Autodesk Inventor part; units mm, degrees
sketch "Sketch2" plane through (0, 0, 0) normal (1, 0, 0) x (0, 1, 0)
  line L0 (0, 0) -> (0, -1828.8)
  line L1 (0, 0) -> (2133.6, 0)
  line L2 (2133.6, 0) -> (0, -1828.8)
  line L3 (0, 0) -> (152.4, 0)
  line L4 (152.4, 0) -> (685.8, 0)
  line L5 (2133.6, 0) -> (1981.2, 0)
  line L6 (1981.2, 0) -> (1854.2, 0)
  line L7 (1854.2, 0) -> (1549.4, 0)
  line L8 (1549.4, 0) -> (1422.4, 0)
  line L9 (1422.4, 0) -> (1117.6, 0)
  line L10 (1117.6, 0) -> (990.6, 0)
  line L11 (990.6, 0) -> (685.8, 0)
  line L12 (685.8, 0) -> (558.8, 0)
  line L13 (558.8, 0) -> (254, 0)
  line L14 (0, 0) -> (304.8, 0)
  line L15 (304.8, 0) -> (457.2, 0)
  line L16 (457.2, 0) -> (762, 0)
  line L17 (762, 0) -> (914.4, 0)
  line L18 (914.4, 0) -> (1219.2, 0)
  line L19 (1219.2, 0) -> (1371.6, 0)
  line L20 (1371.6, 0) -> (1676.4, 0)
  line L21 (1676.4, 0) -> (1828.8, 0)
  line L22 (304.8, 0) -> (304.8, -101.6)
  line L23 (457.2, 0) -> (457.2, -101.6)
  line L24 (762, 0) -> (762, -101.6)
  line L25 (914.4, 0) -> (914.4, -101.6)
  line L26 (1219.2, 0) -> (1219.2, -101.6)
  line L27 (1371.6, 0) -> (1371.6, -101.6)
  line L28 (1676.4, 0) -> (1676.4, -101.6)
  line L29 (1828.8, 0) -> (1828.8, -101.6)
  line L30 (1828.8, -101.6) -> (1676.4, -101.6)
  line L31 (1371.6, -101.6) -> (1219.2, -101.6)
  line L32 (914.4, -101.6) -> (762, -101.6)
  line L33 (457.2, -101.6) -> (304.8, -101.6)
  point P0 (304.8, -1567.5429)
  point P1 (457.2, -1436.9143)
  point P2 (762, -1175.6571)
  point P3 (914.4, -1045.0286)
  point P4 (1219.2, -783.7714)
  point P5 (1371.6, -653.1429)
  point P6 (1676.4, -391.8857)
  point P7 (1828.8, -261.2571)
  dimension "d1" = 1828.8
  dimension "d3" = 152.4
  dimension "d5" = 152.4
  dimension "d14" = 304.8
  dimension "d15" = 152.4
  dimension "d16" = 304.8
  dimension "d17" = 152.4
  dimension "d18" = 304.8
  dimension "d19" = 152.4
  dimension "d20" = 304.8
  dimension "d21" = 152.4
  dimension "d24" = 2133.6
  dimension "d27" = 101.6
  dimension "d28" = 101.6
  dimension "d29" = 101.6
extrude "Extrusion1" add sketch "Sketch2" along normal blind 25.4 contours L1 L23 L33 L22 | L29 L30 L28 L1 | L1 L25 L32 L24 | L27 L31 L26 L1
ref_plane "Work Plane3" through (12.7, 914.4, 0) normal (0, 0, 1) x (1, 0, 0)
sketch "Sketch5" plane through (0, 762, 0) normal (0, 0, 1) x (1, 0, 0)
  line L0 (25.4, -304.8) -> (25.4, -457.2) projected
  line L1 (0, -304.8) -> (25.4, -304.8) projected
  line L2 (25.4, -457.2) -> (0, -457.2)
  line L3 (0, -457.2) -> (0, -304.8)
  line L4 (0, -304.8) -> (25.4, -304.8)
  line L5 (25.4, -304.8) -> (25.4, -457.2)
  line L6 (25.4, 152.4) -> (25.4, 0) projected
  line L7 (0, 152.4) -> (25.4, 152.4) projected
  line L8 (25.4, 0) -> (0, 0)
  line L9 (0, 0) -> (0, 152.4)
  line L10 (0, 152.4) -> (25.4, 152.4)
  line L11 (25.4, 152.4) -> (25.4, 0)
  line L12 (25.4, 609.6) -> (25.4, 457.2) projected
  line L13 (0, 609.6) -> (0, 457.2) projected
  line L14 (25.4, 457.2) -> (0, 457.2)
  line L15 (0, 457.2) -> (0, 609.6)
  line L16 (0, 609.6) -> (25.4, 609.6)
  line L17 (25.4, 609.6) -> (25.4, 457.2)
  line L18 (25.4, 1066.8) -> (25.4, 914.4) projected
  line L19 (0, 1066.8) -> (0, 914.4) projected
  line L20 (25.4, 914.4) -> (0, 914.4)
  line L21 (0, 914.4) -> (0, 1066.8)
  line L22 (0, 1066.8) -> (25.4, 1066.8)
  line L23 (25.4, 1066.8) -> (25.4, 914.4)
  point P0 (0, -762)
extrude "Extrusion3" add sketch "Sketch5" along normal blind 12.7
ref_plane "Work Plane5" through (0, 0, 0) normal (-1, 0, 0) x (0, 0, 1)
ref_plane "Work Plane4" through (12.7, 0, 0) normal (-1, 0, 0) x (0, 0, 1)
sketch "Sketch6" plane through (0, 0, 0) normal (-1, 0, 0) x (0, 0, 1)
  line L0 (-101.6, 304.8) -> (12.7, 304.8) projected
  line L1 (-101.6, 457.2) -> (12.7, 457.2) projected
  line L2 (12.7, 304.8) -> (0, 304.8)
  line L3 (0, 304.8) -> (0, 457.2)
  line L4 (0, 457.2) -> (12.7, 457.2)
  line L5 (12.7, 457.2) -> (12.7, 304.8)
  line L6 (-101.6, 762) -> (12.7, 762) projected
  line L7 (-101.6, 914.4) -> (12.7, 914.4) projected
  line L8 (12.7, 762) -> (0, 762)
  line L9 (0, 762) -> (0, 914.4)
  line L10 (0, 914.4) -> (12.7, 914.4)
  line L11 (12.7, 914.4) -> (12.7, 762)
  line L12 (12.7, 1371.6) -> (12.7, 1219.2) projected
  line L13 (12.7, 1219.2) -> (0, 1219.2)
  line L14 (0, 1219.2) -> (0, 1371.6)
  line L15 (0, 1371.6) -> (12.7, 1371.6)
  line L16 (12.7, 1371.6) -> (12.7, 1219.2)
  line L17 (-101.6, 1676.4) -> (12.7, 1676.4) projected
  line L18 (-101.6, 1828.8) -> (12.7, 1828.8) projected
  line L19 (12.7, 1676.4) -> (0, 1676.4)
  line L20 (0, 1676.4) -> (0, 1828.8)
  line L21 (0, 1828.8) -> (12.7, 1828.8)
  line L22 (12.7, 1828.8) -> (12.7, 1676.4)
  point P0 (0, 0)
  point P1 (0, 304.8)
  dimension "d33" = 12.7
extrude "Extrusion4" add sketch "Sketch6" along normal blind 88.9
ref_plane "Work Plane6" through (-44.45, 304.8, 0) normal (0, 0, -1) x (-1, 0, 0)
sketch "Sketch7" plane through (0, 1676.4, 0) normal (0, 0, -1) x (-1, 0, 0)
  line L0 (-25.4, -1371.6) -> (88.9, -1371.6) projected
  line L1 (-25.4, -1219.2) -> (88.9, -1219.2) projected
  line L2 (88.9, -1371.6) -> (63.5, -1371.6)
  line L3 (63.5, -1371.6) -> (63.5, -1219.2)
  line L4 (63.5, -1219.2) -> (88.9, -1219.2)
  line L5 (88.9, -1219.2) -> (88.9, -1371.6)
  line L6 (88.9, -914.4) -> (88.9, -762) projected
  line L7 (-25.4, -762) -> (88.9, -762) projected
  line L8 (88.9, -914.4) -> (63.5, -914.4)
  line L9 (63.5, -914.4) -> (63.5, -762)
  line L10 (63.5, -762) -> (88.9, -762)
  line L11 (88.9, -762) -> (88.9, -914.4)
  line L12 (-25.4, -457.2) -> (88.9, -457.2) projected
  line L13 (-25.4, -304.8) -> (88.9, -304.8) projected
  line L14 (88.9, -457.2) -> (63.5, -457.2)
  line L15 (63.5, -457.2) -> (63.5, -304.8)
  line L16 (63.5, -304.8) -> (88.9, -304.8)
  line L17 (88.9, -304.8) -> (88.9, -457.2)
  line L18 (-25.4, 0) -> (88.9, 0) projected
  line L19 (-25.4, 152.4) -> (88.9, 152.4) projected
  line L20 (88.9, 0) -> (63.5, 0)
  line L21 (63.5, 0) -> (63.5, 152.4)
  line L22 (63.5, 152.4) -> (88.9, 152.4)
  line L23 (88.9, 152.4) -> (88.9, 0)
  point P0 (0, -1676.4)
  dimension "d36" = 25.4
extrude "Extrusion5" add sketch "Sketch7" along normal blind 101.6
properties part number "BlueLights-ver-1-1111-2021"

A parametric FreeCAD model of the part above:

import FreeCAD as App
import Part
import Sketcher

V = App.Vector
Q = App.Units.Quantity


def add_polygon(sketch, points):
    """Adds a closed chain of lines whose ends are joined by coincident constraints."""
    first, n = sketch.GeometryCount, len(points)
    for a, b in zip(points, points[1:] + points[:1]):
        sketch.addGeometry(Part.LineSegment(App.Vector(*a, 0), App.Vector(*b, 0)), False)
    for i in range(n):
        sketch.addConstraint(Sketcher.Constraint("Coincident", first + i, 2, first + (i + 1) % n, 1))

doc = App.newDocument("Part")
body = doc.addObject("PartDesign::Body", "Body")
body.AllowCompound = True

sketch1 = body.newObject("Sketcher::SketchObject", "Sketch")
sketch1.AttachmentSupport = (doc.getObject("YZ_Plane"), [""])
sketch1.MapMode = "FlatFace"
add_polygon(sketch1, [(457, 0), (305, 0), (305, -102), (457, -102)])
add_polygon(sketch1, [(1829, -102), (1829, 0), (1676, 0), (1676, -102)])
add_polygon(sketch1, [(914, 0), (762, 0), (762, -102), (914, -102)])
add_polygon(sketch1, [(1372, -102), (1372, 0), (1219, 0), (1219, -102)])
sketch1.addConstraint([
    Sketcher.Constraint("Horizontal", 0),
    Sketcher.Constraint("Vertical", 1),
    Sketcher.Constraint("Horizontal", 2),
    Sketcher.Constraint("Vertical", 3),
    Sketcher.Constraint("Vertical", 4),
    Sketcher.Constraint("Horizontal", 5),
    Sketcher.Constraint("Vertical", 6),
    Sketcher.Constraint("Horizontal", 7),
    Sketcher.Constraint("Horizontal", 8),
    Sketcher.Constraint("Vertical", 9),
    Sketcher.Constraint("Horizontal", 10),
    Sketcher.Constraint("Vertical", 11),
    Sketcher.Constraint("Vertical", 12),
    Sketcher.Constraint("Horizontal", 13),
    Sketcher.Constraint("Vertical", 14),
    Sketcher.Constraint("Horizontal", 15),
    Sketcher.Constraint("PointOnObject", 0, 2, -1),
    Sketcher.Constraint("PointOnObject", 4, 2, -1),
    Sketcher.Constraint("PointOnObject", 8, 2, -1),
    Sketcher.Constraint("PointOnObject", 12, 2, -1),
    Sketcher.Constraint("Horizontal", 2, 2, 6, 2),
    Sketcher.Constraint("Horizontal", 7, 2, 9, 2),
    Sketcher.Constraint("Horizontal", 10, 2, 14, 2),
    Sketcher.Constraint("Equal", 2, 5),
    Sketcher.Constraint("Equal", 7, 8),
    Sketcher.Constraint("Equal", 10, 13),
    Sketcher.Constraint("DistanceX", 0, 2, 0, 1, Q("6 in")),
    Sketcher.Constraint("DistanceY", 1, 2, 1, 1, Q("4 in")),
    Sketcher.Constraint("DistanceX", -1, 1, 0, 2, Q("12 in")),
    Sketcher.Constraint("DistanceX", -1, 1, 4, 2, Q("72 in")),
    Sketcher.Constraint("DistanceX", 3, 2, 8, 2, Q("12 in")),
    Sketcher.Constraint("DistanceX", 12, 2, 5, 2, Q("12 in")),
])
pad1 = body.newObject("PartDesign::Pad", "Pad")
pad1.Profile = sketch1
pad1.Length = Q("1 in")

sketch2 = body.newObject("Sketcher::SketchObject", "Sketch001")
sketch2.AttachmentSupport = (doc.getObject("XY_Plane"), [""])
sketch2.MapMode = "FlatFace"
add_polygon(sketch2, [(25, 305), (25, 457), (0, 457), (0, 305)])
add_polygon(sketch2, [(25, 762), (25, 914), (0, 914), (0, 762)])
add_polygon(sketch2, [(25, 1219), (25, 1372), (0, 1372), (0, 1219)])
add_polygon(sketch2, [(25, 1676), (25, 1829), (0, 1829), (0, 1676)])
sketch2.addConstraint([
    Sketcher.Constraint("Vertical", 0),
    Sketcher.Constraint("Horizontal", 1),
    Sketcher.Constraint("Vertical", 2),
    Sketcher.Constraint("Horizontal", 3),
    Sketcher.Constraint("Vertical", 4),
    Sketcher.Constraint("Horizontal", 5),
    Sketcher.Constraint("Vertical", 6),
    Sketcher.Constraint("Horizontal", 7),
    Sketcher.Constraint("Vertical", 8),
    Sketcher.Constraint("Horizontal", 9),
    Sketcher.Constraint("Vertical", 10),
    Sketcher.Constraint("Horizontal", 11),
    Sketcher.Constraint("Vertical", 12),
    Sketcher.Constraint("Horizontal", 13),
    Sketcher.Constraint("Vertical", 14),
    Sketcher.Constraint("Horizontal", 15),
    Sketcher.Constraint("PointOnObject", 1, 2, -2),
    Sketcher.Constraint("PointOnObject", 5, 2, -2),
    Sketcher.Constraint("PointOnObject", 9, 2, -2),
    Sketcher.Constraint("PointOnObject", 13, 2, -2),
    Sketcher.Constraint("Vertical", 3, 2, 4, 2),
    Sketcher.Constraint("Vertical", 7, 2, 8, 2),
    Sketcher.Constraint("Vertical", 11, 2, 12, 2),
    Sketcher.Constraint("Equal", 2, 4),
    Sketcher.Constraint("Equal", 6, 8),
    Sketcher.Constraint("Equal", 10, 12),
    Sketcher.Constraint("DistanceX", 1, 2, 1, 1, Q("1 in")),
    Sketcher.Constraint("DistanceY", 0, 1, 0, 2, Q("6 in")),
    Sketcher.Constraint("DistanceY", -1, 1, 0, 2, Q("18 in")),
    Sketcher.Constraint("DistanceY", -1, 1, 4, 2, Q("36 in")),
    Sketcher.Constraint("DistanceY", -1, 1, 8, 2, Q("54 in")),
    Sketcher.Constraint("DistanceY", -1, 1, 12, 2, Q("72 in")),
])
pad2 = body.newObject("PartDesign::Pad", "Pad001")
pad2.Profile = sketch2
pad2.Length = Q("0.5 in")

sketch3 = body.newObject("Sketcher::SketchObject", "Sketch002")
sketch3.AttachmentSupport = (doc.getObject("YZ_Plane"), [""])
sketch3.MapMode = "FlatFace"
add_polygon(sketch3, [(457, 0), (305, 0), (305, 13), (457, 13)])
add_polygon(sketch3, [(914, 0), (762, 0), (762, 13), (914, 13)])
add_polygon(sketch3, [(1219, 13), (1372, 13), (1372, 0), (1219, 0)])
add_polygon(sketch3, [(1829, 0), (1676, 0), (1676, 13), (1829, 13)])
sketch3.addConstraint([
    Sketcher.Constraint("Horizontal", 0),
    Sketcher.Constraint("Vertical", 1),
    Sketcher.Constraint("Horizontal", 2),
    Sketcher.Constraint("Vertical", 3),
    Sketcher.Constraint("Horizontal", 4),
    Sketcher.Constraint("Vertical", 5),
    Sketcher.Constraint("Horizontal", 6),
    Sketcher.Constraint("Vertical", 7),
    Sketcher.Constraint("Horizontal", 8),
    Sketcher.Constraint("Vertical", 9),
    Sketcher.Constraint("Horizontal", 10),
    Sketcher.Constraint("Vertical", 11),
    Sketcher.Constraint("Horizontal", 12),
    Sketcher.Constraint("Vertical", 13),
    Sketcher.Constraint("Horizontal", 14),
    Sketcher.Constraint("Vertical", 15),
    Sketcher.Constraint("PointOnObject", 0, 2, -1),
    Sketcher.Constraint("PointOnObject", 4, 2, -1),
    Sketcher.Constraint("PointOnObject", 9, 2, -1),
    Sketcher.Constraint("PointOnObject", 12, 2, -1),
    Sketcher.Constraint("Horizontal", 2, 2, 5, 2),
    Sketcher.Constraint("Horizontal", 6, 2, 8, 2),
    Sketcher.Constraint("Horizontal", 11, 2, 13, 2),
    Sketcher.Constraint("Equal", 2, 4),
    Sketcher.Constraint("Equal", 6, 8),
    Sketcher.Constraint("Equal", 10, 12),
    Sketcher.Constraint("DistanceY", 1, 1, 1, 2, Q("0.5 in")),
    Sketcher.Constraint("DistanceX", 0, 2, 0, 1, Q("6 in")),
    Sketcher.Constraint("DistanceX", -1, 1, 0, 2, Q("12 in")),
    Sketcher.Constraint("DistanceX", -1, 1, 4, 2, Q("30 in")),
    Sketcher.Constraint("DistanceX", -1, 1, 8, 2, Q("54 in")),
    Sketcher.Constraint("DistanceX", -1, 1, 12, 2, Q("66 in")),
])
pad3 = body.newObject("PartDesign::Pad", "Pad002")
pad3.Profile = sketch3
pad3.Length = Q("3.5 in")
pad3.Reversed = True

sketch4 = body.newObject("Sketcher::SketchObject", "Sketch003")
sketch4.AttachmentSupport = (doc.getObject("XY_Plane"), [""])
sketch4.MapMode = "FlatFace"
add_polygon(sketch4, [(-64, 457), (-64, 305), (-89, 305), (-89, 457)])
add_polygon(sketch4, [(-64, 762), (-89, 762), (-89, 914), (-64, 914)])
add_polygon(sketch4, [(-64, 1372), (-64, 1219), (-89, 1219), (-89, 1372)])
add_polygon(sketch4, [(-64, 1829), (-64, 1676), (-89, 1676), (-89, 1829)])
sketch4.addConstraint([
    Sketcher.Constraint("Vertical", 0),
    Sketcher.Constraint("Horizontal", 1),
    Sketcher.Constraint("Vertical", 2),
    Sketcher.Constraint("Horizontal", 3),
    Sketcher.Constraint("Horizontal", 4),
    Sketcher.Constraint("Vertical", 5),
    Sketcher.Constraint("Horizontal", 6),
    Sketcher.Constraint("Vertical", 7),
    Sketcher.Constraint("Vertical", 8),
    Sketcher.Constraint("Horizontal", 9),
    Sketcher.Constraint("Vertical", 10),
    Sketcher.Constraint("Horizontal", 11),
    Sketcher.Constraint("Vertical", 12),
    Sketcher.Constraint("Horizontal", 13),
    Sketcher.Constraint("Vertical", 14),
    Sketcher.Constraint("Horizontal", 15),
    Sketcher.Constraint("Vertical", 2, 2, 4, 2),
    Sketcher.Constraint("Vertical", 3, 2, 6, 2),
    Sketcher.Constraint("Vertical", 7, 2, 8, 2),
    Sketcher.Constraint("Vertical", 5, 2, 9, 2),
    Sketcher.Constraint("Vertical", 11, 2, 12, 2),
    Sketcher.Constraint("Vertical", 10, 2, 13, 2),
    Sketcher.Constraint("Equal", 2, 5),
    Sketcher.Constraint("Equal", 7, 8),
    Sketcher.Constraint("Equal", 10, 12),
    Sketcher.Constraint("DistanceX", 1, 2, 1, 1, Q("1 in")),
    Sketcher.Constraint("DistanceY", 0, 2, 0, 1, Q("6 in")),
    Sketcher.Constraint("DistanceY", -1, 1, 0, 2, Q("12 in")),
    Sketcher.Constraint("DistanceY", -1, 1, 4, 2, Q("30 in")),
    Sketcher.Constraint("DistanceY", -1, 1, 8, 2, Q("48 in")),
    Sketcher.Constraint("DistanceY", -1, 1, 12, 2, Q("66 in")),
    Sketcher.Constraint("DistanceX", 0, 2, -1, 1, Q("2.5 in")),
])
pad4 = body.newObject("PartDesign::Pad", "Pad003")
pad4.Profile = sketch4
pad4.Length = Q("4 in")
pad4.Reversed = True

doc.recompute()
